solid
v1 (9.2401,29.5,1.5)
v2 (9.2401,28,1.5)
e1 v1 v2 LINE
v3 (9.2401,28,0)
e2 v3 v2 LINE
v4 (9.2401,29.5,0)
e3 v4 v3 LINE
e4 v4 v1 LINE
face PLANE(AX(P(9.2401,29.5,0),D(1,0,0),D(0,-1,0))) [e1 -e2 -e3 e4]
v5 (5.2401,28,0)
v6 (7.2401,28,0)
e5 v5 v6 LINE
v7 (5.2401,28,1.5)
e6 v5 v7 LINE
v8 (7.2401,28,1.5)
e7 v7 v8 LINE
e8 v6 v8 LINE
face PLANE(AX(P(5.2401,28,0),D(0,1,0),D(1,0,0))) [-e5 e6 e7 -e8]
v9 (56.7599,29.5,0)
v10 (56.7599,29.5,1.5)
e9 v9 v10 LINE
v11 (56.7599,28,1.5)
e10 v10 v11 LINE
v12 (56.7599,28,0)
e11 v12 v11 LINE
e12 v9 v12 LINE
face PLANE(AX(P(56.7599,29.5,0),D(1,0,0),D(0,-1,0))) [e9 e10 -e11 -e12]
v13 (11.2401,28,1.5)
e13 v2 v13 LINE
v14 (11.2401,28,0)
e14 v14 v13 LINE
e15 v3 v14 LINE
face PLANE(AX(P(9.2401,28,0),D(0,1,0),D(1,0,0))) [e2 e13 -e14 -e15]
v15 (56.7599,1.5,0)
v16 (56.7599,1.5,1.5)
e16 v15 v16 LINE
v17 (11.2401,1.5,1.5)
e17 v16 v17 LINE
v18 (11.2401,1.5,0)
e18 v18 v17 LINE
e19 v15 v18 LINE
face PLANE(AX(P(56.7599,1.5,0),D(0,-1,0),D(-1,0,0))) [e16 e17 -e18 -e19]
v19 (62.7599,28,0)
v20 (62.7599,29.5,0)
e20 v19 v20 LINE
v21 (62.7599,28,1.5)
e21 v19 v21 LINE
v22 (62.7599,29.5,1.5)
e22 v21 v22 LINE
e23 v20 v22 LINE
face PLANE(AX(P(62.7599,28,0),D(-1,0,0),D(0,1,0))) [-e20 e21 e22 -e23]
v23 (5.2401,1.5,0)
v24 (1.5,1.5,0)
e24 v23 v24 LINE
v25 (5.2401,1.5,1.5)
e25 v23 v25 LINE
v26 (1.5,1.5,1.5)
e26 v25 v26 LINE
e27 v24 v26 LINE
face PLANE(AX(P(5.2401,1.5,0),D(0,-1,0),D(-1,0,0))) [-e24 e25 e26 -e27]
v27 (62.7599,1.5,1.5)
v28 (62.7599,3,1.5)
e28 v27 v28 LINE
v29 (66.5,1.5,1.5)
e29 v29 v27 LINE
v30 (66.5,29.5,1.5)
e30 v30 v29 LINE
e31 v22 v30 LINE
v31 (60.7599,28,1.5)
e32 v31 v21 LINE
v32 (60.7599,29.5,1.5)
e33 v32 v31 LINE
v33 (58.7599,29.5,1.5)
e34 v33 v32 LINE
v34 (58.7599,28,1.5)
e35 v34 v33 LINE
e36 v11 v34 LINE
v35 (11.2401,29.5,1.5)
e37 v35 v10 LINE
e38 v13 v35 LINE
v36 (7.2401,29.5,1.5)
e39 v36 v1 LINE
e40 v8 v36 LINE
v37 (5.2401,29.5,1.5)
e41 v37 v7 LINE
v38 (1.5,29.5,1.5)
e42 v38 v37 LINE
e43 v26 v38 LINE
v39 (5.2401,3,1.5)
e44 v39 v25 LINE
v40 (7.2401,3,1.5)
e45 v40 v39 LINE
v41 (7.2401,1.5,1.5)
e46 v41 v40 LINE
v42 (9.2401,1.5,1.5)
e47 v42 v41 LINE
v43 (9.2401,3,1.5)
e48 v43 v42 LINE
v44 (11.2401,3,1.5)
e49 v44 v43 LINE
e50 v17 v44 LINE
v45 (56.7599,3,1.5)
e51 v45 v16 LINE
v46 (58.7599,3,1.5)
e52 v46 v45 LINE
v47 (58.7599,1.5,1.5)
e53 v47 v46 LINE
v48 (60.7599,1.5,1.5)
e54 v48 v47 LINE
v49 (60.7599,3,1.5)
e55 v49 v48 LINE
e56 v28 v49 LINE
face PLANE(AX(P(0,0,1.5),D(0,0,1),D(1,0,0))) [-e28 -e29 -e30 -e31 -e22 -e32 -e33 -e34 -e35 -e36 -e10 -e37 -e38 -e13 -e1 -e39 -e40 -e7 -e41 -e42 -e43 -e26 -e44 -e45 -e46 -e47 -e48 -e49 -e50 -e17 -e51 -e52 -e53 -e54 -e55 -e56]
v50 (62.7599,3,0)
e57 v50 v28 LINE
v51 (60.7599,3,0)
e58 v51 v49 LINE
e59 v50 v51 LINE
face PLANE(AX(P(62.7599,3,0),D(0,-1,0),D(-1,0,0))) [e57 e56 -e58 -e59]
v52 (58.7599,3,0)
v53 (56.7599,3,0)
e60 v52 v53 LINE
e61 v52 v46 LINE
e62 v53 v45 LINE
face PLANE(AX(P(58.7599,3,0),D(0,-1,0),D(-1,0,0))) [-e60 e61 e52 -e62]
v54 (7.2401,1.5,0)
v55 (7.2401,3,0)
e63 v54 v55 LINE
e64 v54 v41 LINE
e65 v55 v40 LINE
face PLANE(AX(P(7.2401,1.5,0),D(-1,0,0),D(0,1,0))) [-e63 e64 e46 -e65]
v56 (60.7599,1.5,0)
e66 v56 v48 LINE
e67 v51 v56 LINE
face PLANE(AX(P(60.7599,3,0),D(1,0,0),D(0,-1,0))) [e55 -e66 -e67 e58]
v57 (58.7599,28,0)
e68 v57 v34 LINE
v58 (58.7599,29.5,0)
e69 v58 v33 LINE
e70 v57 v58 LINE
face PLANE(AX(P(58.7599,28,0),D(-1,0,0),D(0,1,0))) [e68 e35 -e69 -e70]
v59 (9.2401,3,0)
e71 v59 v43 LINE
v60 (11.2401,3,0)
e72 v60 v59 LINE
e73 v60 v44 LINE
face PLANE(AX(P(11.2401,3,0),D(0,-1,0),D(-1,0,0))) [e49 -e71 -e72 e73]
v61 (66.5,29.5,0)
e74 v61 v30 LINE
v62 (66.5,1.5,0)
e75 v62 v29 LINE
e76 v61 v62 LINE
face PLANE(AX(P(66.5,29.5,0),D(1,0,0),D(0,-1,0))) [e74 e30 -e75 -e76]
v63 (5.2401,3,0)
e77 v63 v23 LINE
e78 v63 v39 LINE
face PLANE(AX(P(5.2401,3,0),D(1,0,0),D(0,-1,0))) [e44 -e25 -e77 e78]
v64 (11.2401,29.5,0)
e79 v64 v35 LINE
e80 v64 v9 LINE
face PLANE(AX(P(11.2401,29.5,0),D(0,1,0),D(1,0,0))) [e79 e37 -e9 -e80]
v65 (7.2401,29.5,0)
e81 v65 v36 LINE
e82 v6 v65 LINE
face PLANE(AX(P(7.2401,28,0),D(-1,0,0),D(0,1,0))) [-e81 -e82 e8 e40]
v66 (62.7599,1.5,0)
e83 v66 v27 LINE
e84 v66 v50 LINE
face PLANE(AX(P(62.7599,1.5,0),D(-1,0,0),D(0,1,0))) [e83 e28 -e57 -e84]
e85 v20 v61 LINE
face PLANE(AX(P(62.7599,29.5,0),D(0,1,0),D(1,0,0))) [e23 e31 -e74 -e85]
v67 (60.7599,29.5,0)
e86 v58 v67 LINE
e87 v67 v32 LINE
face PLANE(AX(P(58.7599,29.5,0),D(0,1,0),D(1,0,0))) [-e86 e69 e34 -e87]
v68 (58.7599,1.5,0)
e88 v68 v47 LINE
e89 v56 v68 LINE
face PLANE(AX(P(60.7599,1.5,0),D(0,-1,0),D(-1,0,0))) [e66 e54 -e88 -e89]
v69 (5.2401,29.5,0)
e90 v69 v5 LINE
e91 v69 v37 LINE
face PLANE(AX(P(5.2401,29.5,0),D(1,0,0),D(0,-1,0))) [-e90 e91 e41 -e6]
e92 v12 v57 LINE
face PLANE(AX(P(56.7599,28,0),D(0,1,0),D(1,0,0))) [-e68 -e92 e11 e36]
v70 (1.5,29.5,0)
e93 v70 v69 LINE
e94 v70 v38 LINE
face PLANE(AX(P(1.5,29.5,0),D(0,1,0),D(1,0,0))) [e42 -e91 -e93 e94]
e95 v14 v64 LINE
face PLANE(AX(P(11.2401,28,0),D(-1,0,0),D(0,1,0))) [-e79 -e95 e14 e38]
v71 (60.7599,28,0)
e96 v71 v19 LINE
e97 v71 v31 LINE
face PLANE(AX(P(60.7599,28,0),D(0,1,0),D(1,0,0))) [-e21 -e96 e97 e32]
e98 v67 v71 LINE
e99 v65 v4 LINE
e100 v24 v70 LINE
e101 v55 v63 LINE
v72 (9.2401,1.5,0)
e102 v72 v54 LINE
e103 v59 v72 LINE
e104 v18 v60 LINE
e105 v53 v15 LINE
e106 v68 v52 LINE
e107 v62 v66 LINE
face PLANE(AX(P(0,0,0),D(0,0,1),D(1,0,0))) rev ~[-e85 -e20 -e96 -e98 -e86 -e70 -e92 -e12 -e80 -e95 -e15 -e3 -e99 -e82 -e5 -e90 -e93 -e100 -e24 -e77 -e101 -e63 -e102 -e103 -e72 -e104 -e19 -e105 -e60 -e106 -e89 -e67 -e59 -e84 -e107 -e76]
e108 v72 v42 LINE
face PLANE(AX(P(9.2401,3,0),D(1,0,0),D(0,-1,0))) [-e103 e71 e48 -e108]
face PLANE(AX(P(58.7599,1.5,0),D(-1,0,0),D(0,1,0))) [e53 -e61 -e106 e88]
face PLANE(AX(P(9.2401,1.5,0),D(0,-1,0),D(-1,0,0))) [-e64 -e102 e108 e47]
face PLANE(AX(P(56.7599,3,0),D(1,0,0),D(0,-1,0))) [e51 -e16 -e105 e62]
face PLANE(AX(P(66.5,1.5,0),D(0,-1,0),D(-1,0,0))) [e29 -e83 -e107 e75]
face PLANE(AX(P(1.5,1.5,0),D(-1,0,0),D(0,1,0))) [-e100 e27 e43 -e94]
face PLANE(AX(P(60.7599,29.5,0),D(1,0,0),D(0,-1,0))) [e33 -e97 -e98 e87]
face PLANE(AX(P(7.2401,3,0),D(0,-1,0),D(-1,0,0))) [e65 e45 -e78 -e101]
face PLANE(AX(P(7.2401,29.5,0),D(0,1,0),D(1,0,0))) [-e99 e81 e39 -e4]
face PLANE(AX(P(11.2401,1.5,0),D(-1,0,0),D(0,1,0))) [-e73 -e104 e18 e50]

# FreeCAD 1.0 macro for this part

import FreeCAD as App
import Part
import Sketcher

doc = App.newDocument("Part")
body = doc.addObject("PartDesign::Body", "Body")

# Sketch on XY plane
sketch1 = doc.addObject("Sketcher::SketchObject", "Sketch")
body.addObject(sketch1)
sketch1.AttachmentSupport = (doc.XY_Plane, [""])
sketch1.MapMode = "FlatFace"
sketch1.addGeometry([
    Part.LineSegment(App.Vector(66.5, 1.5, 0), App.Vector(66.5, 29.5, 0)),  # 0
    Part.LineSegment(App.Vector(66.5, 29.5, 0), App.Vector(62.8, 29.5, 0)),  # 1
    Part.LineSegment(App.Vector(62.8, 29.5, 0), App.Vector(62.8, 28, 0)),  # 2
    Part.LineSegment(App.Vector(62.8, 28, 0), App.Vector(60.8, 28, 0)),  # 3
    Part.LineSegment(App.Vector(60.8, 28, 0), App.Vector(60.8, 29.5, 0)),  # 4
    Part.LineSegment(App.Vector(60.8, 29.5, 0), App.Vector(58.8, 29.5, 0)),  # 5
    Part.LineSegment(App.Vector(58.8, 29.5, 0), App.Vector(58.8, 28, 0)),  # 6
    Part.LineSegment(App.Vector(58.8, 28, 0), App.Vector(56.8, 28, 0)),  # 7
    Part.LineSegment(App.Vector(56.8, 28, 0), App.Vector(56.8, 29.5, 0)),  # 8
    Part.LineSegment(App.Vector(56.8, 29.5, 0), App.Vector(11.2, 29.5, 0)),  # 9
    Part.LineSegment(App.Vector(11.2, 29.5, 0), App.Vector(11.2, 28, 0)),  # 10
    Part.LineSegment(App.Vector(11.2, 28, 0), App.Vector(9.2, 28, 0)),  # 11
    Part.LineSegment(App.Vector(9.2, 28, 0), App.Vector(9.2, 29.5, 0)),  # 12
    Part.LineSegment(App.Vector(9.2, 29.5, 0), App.Vector(7.2, 29.5, 0)),  # 13
    Part.LineSegment(App.Vector(7.2, 29.5, 0), App.Vector(7.2, 28, 0)),  # 14
    Part.LineSegment(App.Vector(7.2, 28, 0), App.Vector(5.2, 28, 0)),  # 15
    Part.LineSegment(App.Vector(5.2, 28, 0), App.Vector(5.2, 29.5, 0)),  # 16
    Part.LineSegment(App.Vector(5.2, 29.5, 0), App.Vector(1.5, 29.5, 0)),  # 17
    Part.LineSegment(App.Vector(1.5, 29.5, 0), App.Vector(1.5, 1.5, 0)),  # 18
    Part.LineSegment(App.Vector(1.5, 1.5, 0), App.Vector(5.2, 1.5, 0)),  # 19
    Part.LineSegment(App.Vector(5.2, 1.5, 0), App.Vector(5.2, 3, 0)),  # 20
    Part.LineSegment(App.Vector(5.2, 3, 0), App.Vector(7.2, 3, 0)),  # 21
    Part.LineSegment(App.Vector(7.2, 3, 0), App.Vector(7.2, 1.5, 0)),  # 22
    Part.LineSegment(App.Vector(7.2, 1.5, 0), App.Vector(9.2, 1.5, 0)),  # 23
    Part.LineSegment(App.Vector(9.2, 1.5, 0), App.Vector(9.2, 3, 0)),  # 24
    Part.LineSegment(App.Vector(9.2, 3, 0), App.Vector(11.2, 3, 0)),  # 25
    Part.LineSegment(App.Vector(11.2, 3, 0), App.Vector(11.2, 1.5, 0)),  # 26
    Part.LineSegment(App.Vector(11.2, 1.5, 0), App.Vector(56.8, 1.5, 0)),  # 27
    Part.LineSegment(App.Vector(56.8, 1.5, 0), App.Vector(56.8, 3, 0)),  # 28
    Part.LineSegment(App.Vector(56.8, 3, 0), App.Vector(58.8, 3, 0)),  # 29
    Part.LineSegment(App.Vector(58.8, 3, 0), App.Vector(58.8, 1.5, 0)),  # 30
    Part.LineSegment(App.Vector(58.8, 1.5, 0), App.Vector(60.8, 1.5, 0)),  # 31
    Part.LineSegment(App.Vector(60.8, 1.5, 0), App.Vector(60.8, 3, 0)),  # 32
    Part.LineSegment(App.Vector(60.8, 3, 0), App.Vector(62.8, 3, 0)),  # 33
    Part.LineSegment(App.Vector(62.8, 3, 0), App.Vector(62.8, 1.5, 0)),  # 34
    Part.LineSegment(App.Vector(62.8, 1.5, 0), App.Vector(66.5, 1.5, 0)),  # 35
], False)
sketch1.addConstraint([
    Sketcher.Constraint("Coincident", 0, 2, 1, 1),
    Sketcher.Constraint("Coincident", 1, 2, 2, 1),
    Sketcher.Constraint("Coincident", 2, 2, 3, 1),
    Sketcher.Constraint("Coincident", 3, 2, 4, 1),
    Sketcher.Constraint("Coincident", 4, 2, 5, 1),
    Sketcher.Constraint("Coincident", 5, 2, 6, 1),
    Sketcher.Constraint("Coincident", 6, 2, 7, 1),
    Sketcher.Constraint("Coincident", 7, 2, 8, 1),
    Sketcher.Constraint("Coincident", 8, 2, 9, 1),
    Sketcher.Constraint("Coincident", 9, 2, 10, 1),
    Sketcher.Constraint("Coincident", 10, 2, 11, 1),
    Sketcher.Constraint("Coincident", 11, 2, 12, 1),
    Sketcher.Constraint("Coincident", 12, 2, 13, 1),
    Sketcher.Constraint("Coincident", 13, 2, 14, 1),
    Sketcher.Constraint("Coincident", 14, 2, 15, 1),
    Sketcher.Constraint("Coincident", 15, 2, 16, 1),
    Sketcher.Constraint("Coincident", 16, 2, 17, 1),
    Sketcher.Constraint("Coincident", 17, 2, 18, 1),
    Sketcher.Constraint("Coincident", 18, 2, 19, 1),
    Sketcher.Constraint("Coincident", 19, 2, 20, 1),
    Sketcher.Constraint("Coincident", 20, 2, 21, 1),
    Sketcher.Constraint("Coincident", 21, 2, 22, 1),
    Sketcher.Constraint("Coincident", 22, 2, 23, 1),
    Sketcher.Constraint("Coincident", 23, 2, 24, 1),
    Sketcher.Constraint("Coincident", 24, 2, 25, 1),
    Sketcher.Constraint("Coincident", 25, 2, 26, 1),
    Sketcher.Constraint("Coincident", 26, 2, 27, 1),
    Sketcher.Constraint("Coincident", 27, 2, 28, 1),
    Sketcher.Constraint("Coincident", 28, 2, 29, 1),
    Sketcher.Constraint("Coincident", 29, 2, 30, 1),
    Sketcher.Constraint("Coincident", 30, 2, 31, 1),
    Sketcher.Constraint("Coincident", 31, 2, 32, 1),
    Sketcher.Constraint("Coincident", 32, 2, 33, 1),
    Sketcher.Constraint("Coincident", 33, 2, 34, 1),
    Sketcher.Constraint("Coincident", 34, 2, 35, 1),
    Sketcher.Constraint("Coincident", 35, 2, 0, 1),
    Sketcher.Constraint("Vertical", 0),
    Sketcher.Constraint("Horizontal", 1),
    Sketcher.Constraint("Vertical", 2),
    Sketcher.Constraint("Horizontal", 3),
    Sketcher.Constraint("Vertical", 4),
    Sketcher.Constraint("Horizontal", 5),
    Sketcher.Constraint("Vertical", 6),
    Sketcher.Constraint("Horizontal", 7),
    Sketcher.Constraint("Vertical", 8),
    Sketcher.Constraint("Horizontal", 9),
    Sketcher.Constraint("Vertical", 10),
    Sketcher.Constraint("Horizontal", 11),
    Sketcher.Constraint("Vertical", 12),
    Sketcher.Constraint("Horizontal", 13),
    Sketcher.Constraint("Vertical", 14),
    Sketcher.Constraint("Horizontal", 15),
    Sketcher.Constraint("Vertical", 16),
    Sketcher.Constraint("Horizontal", 17),
    Sketcher.Constraint("Vertical", 18),
    Sketcher.Constraint("Horizontal", 19),
    Sketcher.Constraint("Vertical", 20),
    Sketcher.Constraint("Horizontal", 21),
    Sketcher.Constraint("Vertical", 22),
    Sketcher.Constraint("Horizontal", 23),
    Sketcher.Constraint("Vertical", 24),
    Sketcher.Constraint("Horizontal", 25),
    Sketcher.Constraint("Vertical", 26),
    Sketcher.Constraint("Horizontal", 27),
    Sketcher.Constraint("Vertical", 28),
    Sketcher.Constraint("Horizontal", 29),
    Sketcher.Constraint("Vertical", 30),
    Sketcher.Constraint("Horizontal", 31),
    Sketcher.Constraint("Vertical", 32),
    Sketcher.Constraint("Horizontal", 33),
    Sketcher.Constraint("Vertical", 34),
    Sketcher.Constraint("Horizontal", 35),
    Sketcher.Constraint("Horizontal", 1, 2, 4, 2),
    Sketcher.Constraint("Horizontal", 3, 2, 6, 2),
    Sketcher.Constraint("Horizontal", 5, 2, 8, 2),
    Sketcher.Constraint("Horizontal", 7, 2, 10, 2),
    Sketcher.Constraint("Horizontal", 9, 2, 12, 2),
    Sketcher.Constraint("Horizontal", 11, 2, 14, 2),
    Sketcher.Constraint("Horizontal", 13, 2, 16, 2),
    Sketcher.Constraint("Horizontal", 19, 2, 22, 2),
    Sketcher.Constraint("Horizontal", 21, 2, 24, 2),
    Sketcher.Constraint("Horizontal", 23, 2, 26, 2),
    Sketcher.Constraint("Horizontal", 25, 2, 28, 2),
    Sketcher.Constraint("Horizontal", 27, 2, 30, 2),
    Sketcher.Constraint("Horizontal", 29, 2, 32, 2),
    Sketcher.Constraint("Horizontal", 31, 2, 34, 2),
    Sketcher.Constraint("Vertical", 16, 2, 19, 2),
    Sketcher.Constraint("Vertical", 14, 2, 21, 2),
    Sketcher.Constraint("Vertical", 12, 2, 23, 2),
    Sketcher.Constraint("Vertical", 10, 2, 25, 2),
    Sketcher.Constraint("Vertical", 8, 2, 27, 2),
    Sketcher.Constraint("Vertical", 6, 2, 29, 2),
    Sketcher.Constraint("Vertical", 4, 2, 31, 2),
    Sketcher.Constraint("Vertical", 2, 2, 33, 2),
    Sketcher.Constraint("Equal", 3, 5),
    Sketcher.Constraint("Equal", 5, 7),
    Sketcher.Constraint("Equal", 7, 11),
    Sketcher.Constraint("Equal", 11, 13),
    Sketcher.Constraint("Equal", 13, 15),
    Sketcher.Constraint("Equal", 1, 17),
    Sketcher.Constraint("Equal", 16, 20),
    Sketcher.Constraint("DistanceX", 3, 2, 3, 1, 2.0),
    Sketcher.Constraint("DistanceY", 0, 1, 0, 2, 28.0),
    Sketcher.Constraint("DistanceY", 2, 2, 2, 1, 1.5),
    Sketcher.Constraint("DistanceY", -1, 1, 2, 2, 28.0),
    Sketcher.Constraint("DistanceX", 1, 2, 1, 1, 3.74),
    Sketcher.Constraint("DistanceX", -1, 1, 0, 2, 66.5),
    Sketcher.Constraint("DistanceX", -1, 1, 17, 2, 1.5),
])
pad1 = doc.addObject("PartDesign::Pad", "Pad")
body.addObject(pad1)
pad1.Profile = sketch1
pad1.Length = 1.5

doc.recompute()
